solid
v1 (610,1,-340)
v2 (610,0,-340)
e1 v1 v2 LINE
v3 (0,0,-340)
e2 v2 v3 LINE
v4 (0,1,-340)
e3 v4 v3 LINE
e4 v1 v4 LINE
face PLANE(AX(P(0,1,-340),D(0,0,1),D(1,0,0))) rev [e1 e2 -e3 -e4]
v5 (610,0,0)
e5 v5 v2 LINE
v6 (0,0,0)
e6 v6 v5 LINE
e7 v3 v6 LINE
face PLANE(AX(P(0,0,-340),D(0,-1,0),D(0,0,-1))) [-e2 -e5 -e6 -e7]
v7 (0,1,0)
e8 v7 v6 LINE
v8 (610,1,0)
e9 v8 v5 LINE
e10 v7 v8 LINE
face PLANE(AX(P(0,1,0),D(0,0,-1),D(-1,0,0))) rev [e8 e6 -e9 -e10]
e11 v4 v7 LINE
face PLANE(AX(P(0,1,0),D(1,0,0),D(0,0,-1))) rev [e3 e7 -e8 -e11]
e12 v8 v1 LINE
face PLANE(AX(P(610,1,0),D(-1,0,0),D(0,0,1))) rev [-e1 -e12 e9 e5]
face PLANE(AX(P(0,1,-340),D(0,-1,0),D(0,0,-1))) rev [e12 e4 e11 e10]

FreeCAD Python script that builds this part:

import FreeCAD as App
import Part
import Sketcher
from FreeCAD import Vector


def add_polygon(sketch, points):
    """Adds a closed chain of lines whose ends are joined by coincident constraints."""
    first, n = sketch.GeometryCount, len(points)
    for a, b in zip(points, points[1:] + points[:1]):
        sketch.addGeometry(Part.LineSegment(App.Vector(*a, 0), App.Vector(*b, 0)), False)
    for i in range(n):
        sketch.addConstraint(Sketcher.Constraint("Coincident", first + i, 2, first + (i + 1) % n, 1))

doc = App.newDocument("Part")
body = doc.addObject("PartDesign::Body", "Body")

# Sketch on XZ plane
sketch1 = body.newObject("Sketcher::SketchObject", "Sketch")
sketch1.AttachmentSupport = (doc.getObject("XZ_Plane"), [""])
sketch1.MapMode = "FlatFace"
add_polygon(sketch1, [(0, -340), (0, 0), (610, 0), (610, -340)])  # lines 0-3
sketch1.addConstraint([
    Sketcher.Constraint("Vertical", 0),
    Sketcher.Constraint("Horizontal", 1),
    Sketcher.Constraint("Vertical", 2),
    Sketcher.Constraint("Horizontal", 3),
    Sketcher.Constraint("Coincident", 0, 2, -1, 1),
    Sketcher.Constraint("DistanceX", 1, 1, 1, 2, 610.0),
    Sketcher.Constraint("DistanceY", 0, 1, 0, 2, 340.0),
])
pad1 = body.newObject("PartDesign::Pad", "Pad")
pad1.Profile = sketch1
pad1.Length = 1
pad1.Reversed = True

doc.recompute()
